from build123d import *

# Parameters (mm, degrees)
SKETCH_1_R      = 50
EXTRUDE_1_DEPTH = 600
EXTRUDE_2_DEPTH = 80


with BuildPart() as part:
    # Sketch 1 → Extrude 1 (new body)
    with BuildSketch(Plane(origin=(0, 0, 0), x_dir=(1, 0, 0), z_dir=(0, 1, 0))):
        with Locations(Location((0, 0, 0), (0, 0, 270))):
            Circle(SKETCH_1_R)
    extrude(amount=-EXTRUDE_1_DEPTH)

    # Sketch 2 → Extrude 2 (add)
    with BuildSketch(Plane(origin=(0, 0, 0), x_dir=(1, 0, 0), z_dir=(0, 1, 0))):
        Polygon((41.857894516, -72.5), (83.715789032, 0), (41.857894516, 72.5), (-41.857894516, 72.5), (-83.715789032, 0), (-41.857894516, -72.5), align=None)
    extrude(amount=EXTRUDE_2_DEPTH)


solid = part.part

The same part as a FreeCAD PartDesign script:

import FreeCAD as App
import Part
import Sketcher
Q = App.Units.Quantity

doc = App.newDocument("Part")
body = doc.addObject("PartDesign::Body", "Body")

# Sketch on XZ plane
sketch1 = doc.addObject("Sketcher::SketchObject", "Sketch")
body.addObject(sketch1)
sketch1.AttachmentSupport = (doc.XZ_Plane, [""])
sketch1.MapMode = "FlatFace"
sketch1.addGeometry(Part.Circle(App.Vector(0, 0, 0), App.Vector(0, 0, 1), 50), False)
sketch1.addConstraint([
    Sketcher.Constraint("Coincident", 0, 3, -1, 1),
    Sketcher.Constraint("Diameter", 0, 100.0),
])
pad1 = doc.addObject("PartDesign::Pad", "Pad")
body.addObject(pad1)
pad1.Profile = sketch1
pad1.Length = 600

# Sketch on XZ plane
sketch2 = doc.addObject("Sketcher::SketchObject", "Sketch001")
body.addObject(sketch2)
sketch2.AttachmentSupport = (doc.XZ_Plane, [""])
sketch2.MapMode = "FlatFace"
sketch2.addGeometry([
    Part.LineSegment(App.Vector(42, 72, 0), App.Vector(84, 0, 0)),  # 0
    Part.LineSegment(App.Vector(84, 0, 0), App.Vector(42, -72, 0)),  # 1
    Part.LineSegment(App.Vector(42, -72, 0), App.Vector(-42, -72, 0)),  # 2
    Part.LineSegment(App.Vector(-42, -72, 0), App.Vector(-84, 0, 0)),  # 3
    Part.LineSegment(App.Vector(-84, 0, 0), App.Vector(-42, 72, 0)),  # 4
    Part.LineSegment(App.Vector(-42, 72, 0), App.Vector(42, 72, 0)),  # 5
], False)
sketch2.addConstraint([
    Sketcher.Constraint("Coincident", 0, 2, 1, 1),
    Sketcher.Constraint("Coincident", 1, 2, 2, 1),
    Sketcher.Constraint("Coincident", 2, 2, 3, 1),
    Sketcher.Constraint("Coincident", 3, 2, 4, 1),
    Sketcher.Constraint("Coincident", 4, 2, 5, 1),
    Sketcher.Constraint("Coincident", 5, 2, 0, 1),
    Sketcher.Constraint("Horizontal", 2),
    Sketcher.Constraint("Horizontal", 5),
    Sketcher.Constraint("Symmetric", 0, 2, 3, 2, -1, 1),
    Sketcher.Constraint("Symmetric", 1, 2, 4, 2, -1, 1),
    Sketcher.Constraint("PointOnObject", 0, 2, -1),
    Sketcher.Constraint("Parallel", 0, 3),
    Sketcher.Constraint("Vertical", 2, 2, 4, 2),
    Sketcher.Constraint("Angle", 0, Q("-60 deg")),
    Sketcher.Constraint("DistanceY", 2, 2, 4, 2, 145.0),
    Sketcher.Constraint("DistanceX", 2, 2, 2, 1, 83.715789),
])
pad2 = doc.addObject("PartDesign::Pad", "Pad001")
body.addObject(pad2)
pad2.Profile = sketch2
pad2.Length = 80
pad2.Reversed = True

doc.recompute()
